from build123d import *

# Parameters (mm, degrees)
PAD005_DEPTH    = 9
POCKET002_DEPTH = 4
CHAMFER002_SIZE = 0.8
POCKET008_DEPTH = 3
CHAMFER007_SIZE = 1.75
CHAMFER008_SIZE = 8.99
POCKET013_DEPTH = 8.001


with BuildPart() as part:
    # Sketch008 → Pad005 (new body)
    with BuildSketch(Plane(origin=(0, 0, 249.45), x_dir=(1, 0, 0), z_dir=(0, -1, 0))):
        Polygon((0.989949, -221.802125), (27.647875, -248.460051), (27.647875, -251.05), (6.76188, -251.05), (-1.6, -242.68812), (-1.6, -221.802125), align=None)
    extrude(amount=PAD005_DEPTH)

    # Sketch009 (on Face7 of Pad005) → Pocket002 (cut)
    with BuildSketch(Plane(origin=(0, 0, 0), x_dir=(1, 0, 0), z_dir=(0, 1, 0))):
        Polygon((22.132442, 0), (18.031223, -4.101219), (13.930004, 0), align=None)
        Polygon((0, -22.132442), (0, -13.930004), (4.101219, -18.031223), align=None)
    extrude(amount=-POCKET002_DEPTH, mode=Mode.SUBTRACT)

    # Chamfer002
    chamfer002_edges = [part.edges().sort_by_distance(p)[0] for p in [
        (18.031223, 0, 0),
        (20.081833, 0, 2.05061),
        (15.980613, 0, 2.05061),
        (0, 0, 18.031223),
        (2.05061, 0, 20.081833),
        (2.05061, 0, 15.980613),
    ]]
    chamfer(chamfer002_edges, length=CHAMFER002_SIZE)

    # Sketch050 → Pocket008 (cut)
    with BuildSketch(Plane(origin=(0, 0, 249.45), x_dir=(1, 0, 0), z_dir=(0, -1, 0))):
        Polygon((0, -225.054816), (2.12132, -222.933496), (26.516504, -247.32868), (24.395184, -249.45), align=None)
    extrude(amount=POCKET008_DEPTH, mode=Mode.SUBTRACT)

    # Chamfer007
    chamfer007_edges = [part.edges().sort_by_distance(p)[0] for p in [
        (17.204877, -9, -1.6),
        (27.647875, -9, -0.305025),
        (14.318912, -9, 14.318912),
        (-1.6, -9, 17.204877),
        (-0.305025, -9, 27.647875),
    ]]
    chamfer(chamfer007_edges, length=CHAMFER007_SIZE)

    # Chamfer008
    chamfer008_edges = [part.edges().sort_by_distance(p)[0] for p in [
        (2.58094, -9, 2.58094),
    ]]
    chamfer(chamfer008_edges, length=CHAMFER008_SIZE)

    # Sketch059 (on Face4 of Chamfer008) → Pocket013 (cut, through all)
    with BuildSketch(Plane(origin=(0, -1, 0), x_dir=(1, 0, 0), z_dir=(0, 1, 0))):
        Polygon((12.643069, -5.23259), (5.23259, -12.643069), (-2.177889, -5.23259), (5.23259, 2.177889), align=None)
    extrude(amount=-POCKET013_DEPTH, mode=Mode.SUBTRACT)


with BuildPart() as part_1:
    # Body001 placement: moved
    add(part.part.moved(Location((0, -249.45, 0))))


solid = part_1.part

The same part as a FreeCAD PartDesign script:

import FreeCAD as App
import Part
import Sketcher
from FreeCAD import Vector
Q = App.Units.Quantity


def edges_at(feature, points):
    """Names of the edges that pass closest to the given points."""
    edges = feature.Shape.Edges
    near = lambda p: min(range(len(edges)), key=lambda i: edges[i].distToShape(Part.Vertex(*p))[0])
    return sorted({f"Edge{near(p) + 1}" for p in points})


def add_polygon(sketch, points):
    """Adds a closed chain of lines whose ends are joined by coincident constraints."""
    first, n = sketch.GeometryCount, len(points)
    for a, b in zip(points, points[1:] + points[:1]):
        sketch.addGeometry(Part.LineSegment(App.Vector(*a, 0), App.Vector(*b, 0)), False)
    for i in range(n):
        sketch.addConstraint(Sketcher.Constraint("Coincident", first + i, 2, first + (i + 1) % n, 1))

doc = App.newDocument("Part")
body = doc.addObject("PartDesign::Body", "Body")

# Sketch on XZ plane
sketch1 = body.newObject("Sketcher::SketchObject", "Sketch")
sketch1.AttachmentSupport = (doc.getObject("XZ_Plane"), [""])
sketch1.MapMode = "FlatFace"
add_polygon(sketch1, [(27.6, 1), (1, 27.6), (-1.6, 27.6), (-1.6, 6.8), (6.8, -1.6), (27.6, -1.6)])  # lines 0-5
sketch1.addConstraint([
    Sketcher.Constraint("Horizontal", 1),
    Sketcher.Constraint("Vertical", 2),
    Sketcher.Constraint("Horizontal", 4),
    Sketcher.Constraint("Vertical", 5),
    Sketcher.Constraint("Parallel", 0, 3),
    Sketcher.Constraint("Equal", 4, 2),
    Sketcher.Constraint("Equal", 1, 5),
    Sketcher.Constraint("Distance", 0, Q("37.7 mm")),
    Sketcher.Constraint("DistanceX", 1, 2, -1, 1, Q("1.6 mm")),
    Sketcher.Constraint("DistanceY", 3, 2, -1, 1, Q("1.6 mm")),
    Sketcher.Constraint("DistanceX", 1, 2, 1, 1, Q("2.589949 mm")),
    Sketcher.Constraint("DistanceX", 4, 1, 4, 2, Q("20.885995 mm")),
])
pad1 = body.newObject("PartDesign::Pad", "Pad")
pad1.Profile = sketch1
pad1.Length = 9

# Sketch on XZ plane
sketch2 = body.newObject("Sketcher::SketchObject", "Sketch001")
sketch2.AttachmentSupport = (doc.getObject("XZ_Plane"), [""])
sketch2.MapMode = "FlatFace"
add_polygon(sketch2, [(18, 4), (22, 0), (14, 0)])  # lines 0-2
add_polygon(sketch2, [(0, 14), (0, 22), (4, 18)])  # lines 3-5
sketch2.addConstraint([
    Sketcher.Constraint("Horizontal", 1),
    Sketcher.Constraint("Vertical", 3),
    Sketcher.Constraint("PointOnObject", 0, 2, -1),
    Sketcher.Constraint("PointOnObject", 3, 2, -2),
    Sketcher.Constraint("Perpendicular", 0, 2),
    Sketcher.Constraint("Perpendicular", 2, 4),
    Sketcher.Constraint("Perpendicular", 4, 5),
    Sketcher.Constraint("Equal", 1, 3),
    Sketcher.Constraint("Equal", 0, 2),
    Sketcher.Constraint("Distance", 0, Q("5.8 mm")),
    Sketcher.Constraint("DistanceX", -1, 1, 0, 2, Q("22.132442 mm")),
    Sketcher.Constraint("DistanceY", -1, 1, 3, 2, Q("22.132442 mm")),
])
pocket1 = body.newObject("PartDesign::Pocket", "Pocket")
pocket1.Profile = sketch2
pocket1.Length = 4
pocket1.Reversed = True
doc.recompute()

chamfer = body.newObject("PartDesign::Chamfer", "Chamfer")
chamfer.Base = (pocket1, edges_at(pocket1, [
    (18.031, 0, 0),
    (20.082, 0, 2.051),
    (15.981, 0, 2.051),
    (0, 0, 18.031),
    (2.051, 0, 20.082),
    (2.051, 0, 15.981),
]))
chamfer.Size = 0.8

# Sketch on XZ plane
sketch3 = body.newObject("Sketcher::SketchObject", "Sketch002")
sketch3.AttachmentSupport = (doc.getObject("XZ_Plane"), [""])
sketch3.MapMode = "FlatFace"
add_polygon(sketch3, [(2.1, 26.5), (0, 24.4), (24.4, 0), (26.5, 2.1)])  # lines 0-3
sketch3.addConstraint([
    Sketcher.Constraint("PointOnObject", 0, 2, -2),
    Sketcher.Constraint("PointOnObject", 1, 2, -1),
    Sketcher.Constraint("Perpendicular", 0, 1),
    Sketcher.Constraint("Perpendicular", 1, 2),
    Sketcher.Constraint("Perpendicular", 2, 3),
    Sketcher.Constraint("Angle", 0, Q("-135 deg")),
    Sketcher.Constraint("Distance", 0, Q("3 mm")),
    Sketcher.Constraint("Distance", 1, Q("34.5 mm")),
])
pocket2 = body.newObject("PartDesign::Pocket", "Pocket001")
pocket2.Profile = sketch3
pocket2.Length = 3
pocket2.Reversed = True
doc.recompute()

chamfer2 = body.newObject("PartDesign::Chamfer", "Chamfer001")
chamfer2.Base = (pocket2, edges_at(pocket2, [
    (17.205, -9, -1.6),
    (27.648, -9, -0.305),
    (14.319, -9, 14.319),
    (-1.6, -9, 17.205),
    (-0.305, -9, 27.648),
]))
chamfer2.Size = 1.75
doc.recompute()

chamfer3 = body.newObject("PartDesign::Chamfer", "Chamfer002")
chamfer3.Base = (chamfer2, edges_at(chamfer2, [(2.581, -9, 2.581)]))
chamfer3.Size = 8.99

# Sketch on XZ plane
sketch4 = body.newObject("Sketcher::SketchObject", "Sketch003")
sketch4.AttachmentSupport = (doc.getObject("XZ_Plane"), [""])
sketch4.MapMode = "FlatFace"
sketch4.AttachmentOffset = App.Placement(Vector(0, 0, 1), App.Rotation())
add_polygon(sketch4, [(5, 13), (13, 5), (5, -2), (-2, 5)])  # lines 0-3
sketch4.addConstraint([
    Sketcher.Constraint("Perpendicular", 0, 1),
    Sketcher.Constraint("Perpendicular", 1, 2),
    Sketcher.Constraint("Perpendicular", 2, 3),
    Sketcher.Constraint("Horizontal", 0, 2, 2, 2),
    Sketcher.Constraint("Vertical", 1, 2, 3, 2),
    Sketcher.Constraint("Distance", 0, Q("10.48 mm")),
    Sketcher.Constraint("DistanceX", -1, 1, 0, 2, Q("12.643069 mm")),
    Sketcher.Constraint("DistanceY", -1, 1, 0, 2, Q("5.23259 mm")),
])
pocket3 = body.newObject("PartDesign::Pocket", "Pocket002")
pocket3.Profile = sketch4
pocket3.Type = "ThroughAll"
pocket3.Reversed = True
body2 = doc.addObject("PartDesign::Body", "Body001")
doc.recompute()

body.Placement = App.Placement(Vector(0, -249.45, 0), App.Rotation(Vector(0, 0, 1), 0))
boolean = body2.newObject("PartDesign::Boolean", "Boolean")
boolean.Type = "Fuse"
boolean.addObjects([body])

doc.recompute()
